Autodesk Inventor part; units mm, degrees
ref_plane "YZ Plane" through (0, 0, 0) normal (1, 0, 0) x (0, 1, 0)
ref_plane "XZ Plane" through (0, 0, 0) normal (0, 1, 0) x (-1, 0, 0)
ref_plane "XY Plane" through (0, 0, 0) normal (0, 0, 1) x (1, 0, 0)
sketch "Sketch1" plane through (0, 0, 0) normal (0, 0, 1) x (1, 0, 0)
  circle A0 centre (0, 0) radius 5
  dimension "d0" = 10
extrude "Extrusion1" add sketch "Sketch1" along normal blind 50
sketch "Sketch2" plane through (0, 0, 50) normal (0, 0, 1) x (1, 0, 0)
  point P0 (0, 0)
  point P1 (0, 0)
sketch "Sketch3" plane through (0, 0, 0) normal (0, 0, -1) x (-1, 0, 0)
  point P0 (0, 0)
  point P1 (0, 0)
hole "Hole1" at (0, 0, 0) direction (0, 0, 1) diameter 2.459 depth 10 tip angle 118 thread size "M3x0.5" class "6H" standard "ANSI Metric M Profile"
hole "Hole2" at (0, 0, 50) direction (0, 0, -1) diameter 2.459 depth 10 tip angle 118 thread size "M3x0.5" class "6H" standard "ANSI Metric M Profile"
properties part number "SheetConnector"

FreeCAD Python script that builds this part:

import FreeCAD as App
import Part
import Sketcher
from FreeCAD import Vector
Q = App.Units.Quantity

doc = App.newDocument("Part")
body = doc.addObject("PartDesign::Body", "Body")

sketch1 = doc.addObject("Sketcher::SketchObject", "Sketch")
body.addObject(sketch1)
sketch1.AttachmentSupport = (doc.XY_Plane, [""])
sketch1.MapMode = "FlatFace"
sketch1.addGeometry(Part.Circle(Vector(0, 0, 0), Vector(0, 0, 1), 5), False)
sketch1.addConstraint([
    Sketcher.Constraint("Coincident", 0, 3, -1, 1),
    Sketcher.Constraint("Diameter", 0, Q("10 mm")),
])
pad1 = doc.addObject("PartDesign::Pad", "Pad")
body.addObject(pad1)
pad1.Profile = sketch1
pad1.Length = 50

sketch2 = doc.addObject("Sketcher::SketchObject", "Sketch001")
body.addObject(sketch2)
sketch2.AttachmentSupport = (doc.XY_Plane, [""])
sketch2.MapMode = "FlatFace"
sketch2.addGeometry(Part.Circle(Vector(0, 0, 0), Vector(0, 0, 1), 1.2295), False)
sketch2.addConstraint([
    Sketcher.Constraint("Coincident", 0, 3, -1, 1),
    Sketcher.Constraint("Diameter", 0, Q("2.459 mm")),
])
doc.recompute()
hole = doc.addObject("PartDesign::Hole", "Hole")
body.addObject(hole)
hole.Profile = sketch2
hole.ThreadType = "None"
hole.Diameter = 2.459
hole.DepthType = "Dimension"
hole.Depth = 10
hole.DrillPoint = "Angled"
hole.DrillPointAngle = 118
hole.Reversed = True

sketch3 = doc.addObject("Sketcher::SketchObject", "Sketch002")
body.addObject(sketch3)
sketch3.AttachmentSupport = (doc.XY_Plane, [""])
sketch3.MapMode = "FlatFace"
sketch3.AttachmentOffset = App.Placement(Vector(0, 0, 50), App.Rotation())
sketch3.addGeometry(Part.Circle(Vector(0, 0, 0), Vector(0, 0, 1), 1.2295), False)
sketch3.addConstraint([
    Sketcher.Constraint("Coincident", 0, 3, -1, 1),
    Sketcher.Constraint("Diameter", 0, Q("2.459 mm")),
])
doc.recompute()
hole2 = doc.addObject("PartDesign::Hole", "Hole001")
body.addObject(hole2)
hole2.Profile = sketch3
hole2.ThreadType = "None"
hole2.Diameter = 2.459
hole2.DepthType = "Dimension"
hole2.Depth = 10
hole2.DrillPoint = "Angled"
hole2.DrillPointAngle = 118

doc.recompute()
